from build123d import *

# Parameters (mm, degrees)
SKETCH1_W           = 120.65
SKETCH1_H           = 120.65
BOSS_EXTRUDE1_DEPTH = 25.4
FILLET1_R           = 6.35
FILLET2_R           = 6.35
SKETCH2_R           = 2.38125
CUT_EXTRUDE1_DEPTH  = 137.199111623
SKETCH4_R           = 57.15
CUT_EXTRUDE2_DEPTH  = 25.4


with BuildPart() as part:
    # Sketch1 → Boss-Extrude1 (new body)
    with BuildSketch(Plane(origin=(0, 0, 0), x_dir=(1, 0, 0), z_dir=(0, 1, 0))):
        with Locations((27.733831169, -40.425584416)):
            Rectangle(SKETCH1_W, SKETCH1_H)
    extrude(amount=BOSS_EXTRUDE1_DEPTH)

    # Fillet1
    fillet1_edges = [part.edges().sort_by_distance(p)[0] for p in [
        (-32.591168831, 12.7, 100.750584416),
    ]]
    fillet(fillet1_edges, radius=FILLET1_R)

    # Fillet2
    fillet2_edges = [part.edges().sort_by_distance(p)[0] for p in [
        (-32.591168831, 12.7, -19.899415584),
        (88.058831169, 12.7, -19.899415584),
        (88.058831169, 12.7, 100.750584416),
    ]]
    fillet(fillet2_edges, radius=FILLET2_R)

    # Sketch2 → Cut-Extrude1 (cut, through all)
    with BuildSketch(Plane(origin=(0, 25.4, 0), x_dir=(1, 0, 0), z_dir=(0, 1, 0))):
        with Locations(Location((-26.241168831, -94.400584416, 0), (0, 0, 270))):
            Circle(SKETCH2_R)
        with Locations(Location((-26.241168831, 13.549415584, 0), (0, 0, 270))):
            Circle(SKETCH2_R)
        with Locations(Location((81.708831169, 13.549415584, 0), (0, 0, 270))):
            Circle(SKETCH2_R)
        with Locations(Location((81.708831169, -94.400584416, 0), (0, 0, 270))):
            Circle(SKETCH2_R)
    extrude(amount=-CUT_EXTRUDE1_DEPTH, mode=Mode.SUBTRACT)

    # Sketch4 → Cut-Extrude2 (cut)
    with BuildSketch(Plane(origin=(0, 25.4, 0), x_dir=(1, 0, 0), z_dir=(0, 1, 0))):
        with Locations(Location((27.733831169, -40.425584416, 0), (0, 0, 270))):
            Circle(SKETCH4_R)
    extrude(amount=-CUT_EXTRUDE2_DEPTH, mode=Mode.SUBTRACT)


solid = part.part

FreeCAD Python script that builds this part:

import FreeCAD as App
import Part
import Sketcher

V = App.Vector
Q = App.Units.Quantity


def edges_at(feature, points):
    """Names of the edges that pass closest to the given points."""
    edges = feature.Shape.Edges
    near = lambda p: min(range(len(edges)), key=lambda i: edges[i].distToShape(Part.Vertex(*p))[0])
    return sorted({f"Edge{near(p) + 1}" for p in points})


def add_polygon(sketch, points):
    """Adds a closed chain of lines whose ends are joined by coincident constraints."""
    first, n = sketch.GeometryCount, len(points)
    for a, b in zip(points, points[1:] + points[:1]):
        sketch.addGeometry(Part.LineSegment(App.Vector(*a, 0), App.Vector(*b, 0)), False)
    for i in range(n):
        sketch.addConstraint(Sketcher.Constraint("Coincident", first + i, 2, first + (i + 1) % n, 1))

doc = App.newDocument("Part")
body = doc.addObject("PartDesign::Body", "Body")

sketch1 = body.newObject("Sketcher::SketchObject", "Sketch")
sketch1.AttachmentSupport = (doc.getObject("XZ_Plane"), [""])
sketch1.MapMode = "FlatFace"
add_polygon(sketch1, [(-32.591169, -19.899416), (-32.591169, 100.750584), (88.058831, 100.750584), (88.058831, -19.899416)])
sketch1.addConstraint(Sketcher.Constraint("Vertical", 0))
sketch1.addConstraint(Sketcher.Constraint("Horizontal", 1))
sketch1.addConstraint(Sketcher.Constraint("Vertical", 2))
sketch1.addConstraint(Sketcher.Constraint("Horizontal", 3))
sketch1.addConstraint(Sketcher.Constraint("Equal", 3, 0))
sketch1.addConstraint(Sketcher.Constraint("DistanceX", 1, 1, 1, 2, Q("4.75 in")))
sketch1.addConstraint(Sketcher.Constraint("DistanceX", 0, 2, -1, 1, Q("32.591169 mm")))
sketch1.addConstraint(Sketcher.Constraint("DistanceY", -1, 1, 0, 2, Q("100.750584 mm")))
pad1 = body.newObject("PartDesign::Pad", "Pad")
pad1.Profile = sketch1
pad1.Length = Q("1 in")
pad1.Reversed = True
doc.recompute()

fillet = body.newObject("PartDesign::Fillet", "Fillet")
fillet.Base = (pad1, edges_at(pad1, [(-32.591, 12.7, 100.751)]))
fillet.Radius = Q("0.25 in")
doc.recompute()

fillet2 = body.newObject("PartDesign::Fillet", "Fillet001")
fillet2.Base = (fillet, edges_at(fillet, [(-32.591, 12.7, -19.899), (88.059, 12.7, -19.899), (88.059, 12.7, 100.751)]))
fillet2.Radius = Q("0.25 in")

sketch2 = body.newObject("Sketcher::SketchObject", "Sketch001")
sketch2.AttachmentSupport = (doc.getObject("XZ_Plane"), [""])
sketch2.MapMode = "FlatFace"
sketch2.AttachmentOffset = App.Placement(V(0, 0, -1 * 25.4), App.Rotation())
sketch2.addGeometry(Part.Circle(V(-26.241169, 94.400584, 0), V(0, 0, 1), 2.38125), False)
sketch2.addGeometry(Part.Circle(V(-26.241169, -13.549416, 0), V(0, 0, 1), 2.38125), False)
sketch2.addGeometry(Part.Circle(V(81.708831, -13.549416, 0), V(0, 0, 1), 2.38125), False)
sketch2.addGeometry(Part.Circle(V(81.708831, 94.400584, 0), V(0, 0, 1), 2.38125), False)
sketch2.addConstraint(Sketcher.Constraint("Equal", 0, 1))
sketch2.addConstraint(Sketcher.Constraint("Equal", 1, 2))
sketch2.addConstraint(Sketcher.Constraint("Equal", 2, 3))
sketch2.addConstraint(Sketcher.Constraint("Horizontal", 1, 3, 2, 3))
sketch2.addConstraint(Sketcher.Constraint("Horizontal", 0, 3, 3, 3))
sketch2.addConstraint(Sketcher.Constraint("Vertical", 0, 3, 1, 3))
sketch2.addConstraint(Sketcher.Constraint("Vertical", 2, 3, 3, 3))
sketch2.addConstraint(Sketcher.Constraint("Diameter", 0, Q("0.1875 in")))
sketch2.addConstraint(Sketcher.Constraint("DistanceY", 1, 3, 0, 3, Q("4.25 in")))
sketch2.addConstraint(Sketcher.Constraint("DistanceX", 1, 3, 2, 3, Q("4.25 in")))
sketch2.addConstraint(Sketcher.Constraint("DistanceX", 0, 3, -1, 1, Q("26.241169 mm")))
sketch2.addConstraint(Sketcher.Constraint("DistanceY", -1, 1, 0, 3, Q("94.400584 mm")))
pocket1 = body.newObject("PartDesign::Pocket", "Pocket")
pocket1.Profile = sketch2
pocket1.Type = "ThroughAll"
pocket1.Reversed = True

sketch3 = body.newObject("Sketcher::SketchObject", "Sketch002")
sketch3.AttachmentSupport = (doc.getObject("XZ_Plane"), [""])
sketch3.MapMode = "FlatFace"
sketch3.AttachmentOffset = App.Placement(V(0, 0, -1 * 25.4), App.Rotation())
sketch3.addGeometry(Part.Circle(V(27.733831, 40.425584, 0), V(0, 0, 1), 57.15), False)
sketch3.addConstraint(Sketcher.Constraint("Diameter", 0, Q("4.5 in")))
sketch3.addConstraint(Sketcher.Constraint("DistanceX", -1, 1, 0, 3, Q("27.733831 mm")))
sketch3.addConstraint(Sketcher.Constraint("DistanceY", -1, 1, 0, 3, Q("40.425584 mm")))
pocket2 = body.newObject("PartDesign::Pocket", "Pocket001")
pocket2.Profile = sketch3
pocket2.Length = Q("1 in")
pocket2.Reversed = True

doc.recompute()
